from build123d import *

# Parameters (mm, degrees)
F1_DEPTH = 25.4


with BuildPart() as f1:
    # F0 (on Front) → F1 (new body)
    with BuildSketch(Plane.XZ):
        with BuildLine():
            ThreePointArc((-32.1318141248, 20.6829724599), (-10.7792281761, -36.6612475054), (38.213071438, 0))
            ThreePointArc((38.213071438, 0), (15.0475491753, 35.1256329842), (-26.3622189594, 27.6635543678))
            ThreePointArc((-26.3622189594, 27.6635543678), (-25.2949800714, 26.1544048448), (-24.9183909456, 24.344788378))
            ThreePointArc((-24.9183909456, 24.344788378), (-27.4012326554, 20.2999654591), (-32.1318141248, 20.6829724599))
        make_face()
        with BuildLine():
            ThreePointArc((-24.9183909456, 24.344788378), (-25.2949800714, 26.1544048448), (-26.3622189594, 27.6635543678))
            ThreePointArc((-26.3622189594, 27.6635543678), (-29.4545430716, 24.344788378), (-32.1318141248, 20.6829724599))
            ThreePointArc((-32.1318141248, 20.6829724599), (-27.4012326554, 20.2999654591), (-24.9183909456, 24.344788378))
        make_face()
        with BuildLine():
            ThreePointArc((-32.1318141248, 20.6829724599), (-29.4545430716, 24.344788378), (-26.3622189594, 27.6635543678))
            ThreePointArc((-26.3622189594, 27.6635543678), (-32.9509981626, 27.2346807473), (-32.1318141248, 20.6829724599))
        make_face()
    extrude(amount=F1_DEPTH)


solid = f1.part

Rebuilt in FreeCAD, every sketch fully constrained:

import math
import FreeCAD as App
import Part
import Sketcher
Q = App.Units.Quantity

doc = App.newDocument("Part")
body = doc.addObject("PartDesign::Body", "Body")

# Sketch on XZ plane
sketch1 = body.newObject("Sketcher::SketchObject", "Sketch")
sketch1.AttachmentSupport = (doc.getObject("XZ_Plane"), [""])
sketch1.MapMode = "FlatFace"
sketch1.addGeometry(Part.ArcOfCircle(Part.Circle(App.Vector(0, 0, 0), App.Vector(0, 0, 1), 38.2), math.radians(147), math.radians(360)), False)
sketch1.addGeometry(Part.ArcOfCircle(Part.Circle(App.Vector(0, 0, 0), App.Vector(0, 0, 1), 38.2), math.radians(0), math.radians(134)), False)
sketch1.addGeometry(Part.ArcOfCircle(Part.Circle(App.Vector(-29.5, 24.3, 0), App.Vector(0, 0, 1), 4.5), math.radians(47), math.radians(234)), False)
sketch1.addConstraint(Sketcher.Constraint("Tangent", 0, 2, 1, 1))
sketch1.addConstraint(Sketcher.Constraint("Coincident", 1, 2, 2, 1))
sketch1.addConstraint(Sketcher.Constraint("Coincident", 2, 2, 0, 1))
sketch1.addConstraint(Sketcher.Constraint("Coincident", 0, 3, -1, 1))
sketch1.addConstraint(Sketcher.Constraint("Equal", 0, 1))
sketch1.addConstraint(Sketcher.Constraint("PointOnObject", 0, 2, -1))
sketch1.addConstraint(Sketcher.Constraint("Radius", 0, Q("38.213071 mm")))
sketch1.addConstraint(Sketcher.Constraint("Radius", 2, Q("4.536152 mm")))
sketch1.addConstraint(Sketcher.Constraint("DistanceY", -1, 1, 2, 3, Q("24.344788 mm")))
sketch1.addConstraint(Sketcher.Constraint("DistanceX", 1, 2, -1, 1, Q("26.362219 mm")))
pad1 = body.newObject("PartDesign::Pad", "Pad")
pad1.Profile = sketch1
pad1.Length = Q("1 in")

doc.recompute()
